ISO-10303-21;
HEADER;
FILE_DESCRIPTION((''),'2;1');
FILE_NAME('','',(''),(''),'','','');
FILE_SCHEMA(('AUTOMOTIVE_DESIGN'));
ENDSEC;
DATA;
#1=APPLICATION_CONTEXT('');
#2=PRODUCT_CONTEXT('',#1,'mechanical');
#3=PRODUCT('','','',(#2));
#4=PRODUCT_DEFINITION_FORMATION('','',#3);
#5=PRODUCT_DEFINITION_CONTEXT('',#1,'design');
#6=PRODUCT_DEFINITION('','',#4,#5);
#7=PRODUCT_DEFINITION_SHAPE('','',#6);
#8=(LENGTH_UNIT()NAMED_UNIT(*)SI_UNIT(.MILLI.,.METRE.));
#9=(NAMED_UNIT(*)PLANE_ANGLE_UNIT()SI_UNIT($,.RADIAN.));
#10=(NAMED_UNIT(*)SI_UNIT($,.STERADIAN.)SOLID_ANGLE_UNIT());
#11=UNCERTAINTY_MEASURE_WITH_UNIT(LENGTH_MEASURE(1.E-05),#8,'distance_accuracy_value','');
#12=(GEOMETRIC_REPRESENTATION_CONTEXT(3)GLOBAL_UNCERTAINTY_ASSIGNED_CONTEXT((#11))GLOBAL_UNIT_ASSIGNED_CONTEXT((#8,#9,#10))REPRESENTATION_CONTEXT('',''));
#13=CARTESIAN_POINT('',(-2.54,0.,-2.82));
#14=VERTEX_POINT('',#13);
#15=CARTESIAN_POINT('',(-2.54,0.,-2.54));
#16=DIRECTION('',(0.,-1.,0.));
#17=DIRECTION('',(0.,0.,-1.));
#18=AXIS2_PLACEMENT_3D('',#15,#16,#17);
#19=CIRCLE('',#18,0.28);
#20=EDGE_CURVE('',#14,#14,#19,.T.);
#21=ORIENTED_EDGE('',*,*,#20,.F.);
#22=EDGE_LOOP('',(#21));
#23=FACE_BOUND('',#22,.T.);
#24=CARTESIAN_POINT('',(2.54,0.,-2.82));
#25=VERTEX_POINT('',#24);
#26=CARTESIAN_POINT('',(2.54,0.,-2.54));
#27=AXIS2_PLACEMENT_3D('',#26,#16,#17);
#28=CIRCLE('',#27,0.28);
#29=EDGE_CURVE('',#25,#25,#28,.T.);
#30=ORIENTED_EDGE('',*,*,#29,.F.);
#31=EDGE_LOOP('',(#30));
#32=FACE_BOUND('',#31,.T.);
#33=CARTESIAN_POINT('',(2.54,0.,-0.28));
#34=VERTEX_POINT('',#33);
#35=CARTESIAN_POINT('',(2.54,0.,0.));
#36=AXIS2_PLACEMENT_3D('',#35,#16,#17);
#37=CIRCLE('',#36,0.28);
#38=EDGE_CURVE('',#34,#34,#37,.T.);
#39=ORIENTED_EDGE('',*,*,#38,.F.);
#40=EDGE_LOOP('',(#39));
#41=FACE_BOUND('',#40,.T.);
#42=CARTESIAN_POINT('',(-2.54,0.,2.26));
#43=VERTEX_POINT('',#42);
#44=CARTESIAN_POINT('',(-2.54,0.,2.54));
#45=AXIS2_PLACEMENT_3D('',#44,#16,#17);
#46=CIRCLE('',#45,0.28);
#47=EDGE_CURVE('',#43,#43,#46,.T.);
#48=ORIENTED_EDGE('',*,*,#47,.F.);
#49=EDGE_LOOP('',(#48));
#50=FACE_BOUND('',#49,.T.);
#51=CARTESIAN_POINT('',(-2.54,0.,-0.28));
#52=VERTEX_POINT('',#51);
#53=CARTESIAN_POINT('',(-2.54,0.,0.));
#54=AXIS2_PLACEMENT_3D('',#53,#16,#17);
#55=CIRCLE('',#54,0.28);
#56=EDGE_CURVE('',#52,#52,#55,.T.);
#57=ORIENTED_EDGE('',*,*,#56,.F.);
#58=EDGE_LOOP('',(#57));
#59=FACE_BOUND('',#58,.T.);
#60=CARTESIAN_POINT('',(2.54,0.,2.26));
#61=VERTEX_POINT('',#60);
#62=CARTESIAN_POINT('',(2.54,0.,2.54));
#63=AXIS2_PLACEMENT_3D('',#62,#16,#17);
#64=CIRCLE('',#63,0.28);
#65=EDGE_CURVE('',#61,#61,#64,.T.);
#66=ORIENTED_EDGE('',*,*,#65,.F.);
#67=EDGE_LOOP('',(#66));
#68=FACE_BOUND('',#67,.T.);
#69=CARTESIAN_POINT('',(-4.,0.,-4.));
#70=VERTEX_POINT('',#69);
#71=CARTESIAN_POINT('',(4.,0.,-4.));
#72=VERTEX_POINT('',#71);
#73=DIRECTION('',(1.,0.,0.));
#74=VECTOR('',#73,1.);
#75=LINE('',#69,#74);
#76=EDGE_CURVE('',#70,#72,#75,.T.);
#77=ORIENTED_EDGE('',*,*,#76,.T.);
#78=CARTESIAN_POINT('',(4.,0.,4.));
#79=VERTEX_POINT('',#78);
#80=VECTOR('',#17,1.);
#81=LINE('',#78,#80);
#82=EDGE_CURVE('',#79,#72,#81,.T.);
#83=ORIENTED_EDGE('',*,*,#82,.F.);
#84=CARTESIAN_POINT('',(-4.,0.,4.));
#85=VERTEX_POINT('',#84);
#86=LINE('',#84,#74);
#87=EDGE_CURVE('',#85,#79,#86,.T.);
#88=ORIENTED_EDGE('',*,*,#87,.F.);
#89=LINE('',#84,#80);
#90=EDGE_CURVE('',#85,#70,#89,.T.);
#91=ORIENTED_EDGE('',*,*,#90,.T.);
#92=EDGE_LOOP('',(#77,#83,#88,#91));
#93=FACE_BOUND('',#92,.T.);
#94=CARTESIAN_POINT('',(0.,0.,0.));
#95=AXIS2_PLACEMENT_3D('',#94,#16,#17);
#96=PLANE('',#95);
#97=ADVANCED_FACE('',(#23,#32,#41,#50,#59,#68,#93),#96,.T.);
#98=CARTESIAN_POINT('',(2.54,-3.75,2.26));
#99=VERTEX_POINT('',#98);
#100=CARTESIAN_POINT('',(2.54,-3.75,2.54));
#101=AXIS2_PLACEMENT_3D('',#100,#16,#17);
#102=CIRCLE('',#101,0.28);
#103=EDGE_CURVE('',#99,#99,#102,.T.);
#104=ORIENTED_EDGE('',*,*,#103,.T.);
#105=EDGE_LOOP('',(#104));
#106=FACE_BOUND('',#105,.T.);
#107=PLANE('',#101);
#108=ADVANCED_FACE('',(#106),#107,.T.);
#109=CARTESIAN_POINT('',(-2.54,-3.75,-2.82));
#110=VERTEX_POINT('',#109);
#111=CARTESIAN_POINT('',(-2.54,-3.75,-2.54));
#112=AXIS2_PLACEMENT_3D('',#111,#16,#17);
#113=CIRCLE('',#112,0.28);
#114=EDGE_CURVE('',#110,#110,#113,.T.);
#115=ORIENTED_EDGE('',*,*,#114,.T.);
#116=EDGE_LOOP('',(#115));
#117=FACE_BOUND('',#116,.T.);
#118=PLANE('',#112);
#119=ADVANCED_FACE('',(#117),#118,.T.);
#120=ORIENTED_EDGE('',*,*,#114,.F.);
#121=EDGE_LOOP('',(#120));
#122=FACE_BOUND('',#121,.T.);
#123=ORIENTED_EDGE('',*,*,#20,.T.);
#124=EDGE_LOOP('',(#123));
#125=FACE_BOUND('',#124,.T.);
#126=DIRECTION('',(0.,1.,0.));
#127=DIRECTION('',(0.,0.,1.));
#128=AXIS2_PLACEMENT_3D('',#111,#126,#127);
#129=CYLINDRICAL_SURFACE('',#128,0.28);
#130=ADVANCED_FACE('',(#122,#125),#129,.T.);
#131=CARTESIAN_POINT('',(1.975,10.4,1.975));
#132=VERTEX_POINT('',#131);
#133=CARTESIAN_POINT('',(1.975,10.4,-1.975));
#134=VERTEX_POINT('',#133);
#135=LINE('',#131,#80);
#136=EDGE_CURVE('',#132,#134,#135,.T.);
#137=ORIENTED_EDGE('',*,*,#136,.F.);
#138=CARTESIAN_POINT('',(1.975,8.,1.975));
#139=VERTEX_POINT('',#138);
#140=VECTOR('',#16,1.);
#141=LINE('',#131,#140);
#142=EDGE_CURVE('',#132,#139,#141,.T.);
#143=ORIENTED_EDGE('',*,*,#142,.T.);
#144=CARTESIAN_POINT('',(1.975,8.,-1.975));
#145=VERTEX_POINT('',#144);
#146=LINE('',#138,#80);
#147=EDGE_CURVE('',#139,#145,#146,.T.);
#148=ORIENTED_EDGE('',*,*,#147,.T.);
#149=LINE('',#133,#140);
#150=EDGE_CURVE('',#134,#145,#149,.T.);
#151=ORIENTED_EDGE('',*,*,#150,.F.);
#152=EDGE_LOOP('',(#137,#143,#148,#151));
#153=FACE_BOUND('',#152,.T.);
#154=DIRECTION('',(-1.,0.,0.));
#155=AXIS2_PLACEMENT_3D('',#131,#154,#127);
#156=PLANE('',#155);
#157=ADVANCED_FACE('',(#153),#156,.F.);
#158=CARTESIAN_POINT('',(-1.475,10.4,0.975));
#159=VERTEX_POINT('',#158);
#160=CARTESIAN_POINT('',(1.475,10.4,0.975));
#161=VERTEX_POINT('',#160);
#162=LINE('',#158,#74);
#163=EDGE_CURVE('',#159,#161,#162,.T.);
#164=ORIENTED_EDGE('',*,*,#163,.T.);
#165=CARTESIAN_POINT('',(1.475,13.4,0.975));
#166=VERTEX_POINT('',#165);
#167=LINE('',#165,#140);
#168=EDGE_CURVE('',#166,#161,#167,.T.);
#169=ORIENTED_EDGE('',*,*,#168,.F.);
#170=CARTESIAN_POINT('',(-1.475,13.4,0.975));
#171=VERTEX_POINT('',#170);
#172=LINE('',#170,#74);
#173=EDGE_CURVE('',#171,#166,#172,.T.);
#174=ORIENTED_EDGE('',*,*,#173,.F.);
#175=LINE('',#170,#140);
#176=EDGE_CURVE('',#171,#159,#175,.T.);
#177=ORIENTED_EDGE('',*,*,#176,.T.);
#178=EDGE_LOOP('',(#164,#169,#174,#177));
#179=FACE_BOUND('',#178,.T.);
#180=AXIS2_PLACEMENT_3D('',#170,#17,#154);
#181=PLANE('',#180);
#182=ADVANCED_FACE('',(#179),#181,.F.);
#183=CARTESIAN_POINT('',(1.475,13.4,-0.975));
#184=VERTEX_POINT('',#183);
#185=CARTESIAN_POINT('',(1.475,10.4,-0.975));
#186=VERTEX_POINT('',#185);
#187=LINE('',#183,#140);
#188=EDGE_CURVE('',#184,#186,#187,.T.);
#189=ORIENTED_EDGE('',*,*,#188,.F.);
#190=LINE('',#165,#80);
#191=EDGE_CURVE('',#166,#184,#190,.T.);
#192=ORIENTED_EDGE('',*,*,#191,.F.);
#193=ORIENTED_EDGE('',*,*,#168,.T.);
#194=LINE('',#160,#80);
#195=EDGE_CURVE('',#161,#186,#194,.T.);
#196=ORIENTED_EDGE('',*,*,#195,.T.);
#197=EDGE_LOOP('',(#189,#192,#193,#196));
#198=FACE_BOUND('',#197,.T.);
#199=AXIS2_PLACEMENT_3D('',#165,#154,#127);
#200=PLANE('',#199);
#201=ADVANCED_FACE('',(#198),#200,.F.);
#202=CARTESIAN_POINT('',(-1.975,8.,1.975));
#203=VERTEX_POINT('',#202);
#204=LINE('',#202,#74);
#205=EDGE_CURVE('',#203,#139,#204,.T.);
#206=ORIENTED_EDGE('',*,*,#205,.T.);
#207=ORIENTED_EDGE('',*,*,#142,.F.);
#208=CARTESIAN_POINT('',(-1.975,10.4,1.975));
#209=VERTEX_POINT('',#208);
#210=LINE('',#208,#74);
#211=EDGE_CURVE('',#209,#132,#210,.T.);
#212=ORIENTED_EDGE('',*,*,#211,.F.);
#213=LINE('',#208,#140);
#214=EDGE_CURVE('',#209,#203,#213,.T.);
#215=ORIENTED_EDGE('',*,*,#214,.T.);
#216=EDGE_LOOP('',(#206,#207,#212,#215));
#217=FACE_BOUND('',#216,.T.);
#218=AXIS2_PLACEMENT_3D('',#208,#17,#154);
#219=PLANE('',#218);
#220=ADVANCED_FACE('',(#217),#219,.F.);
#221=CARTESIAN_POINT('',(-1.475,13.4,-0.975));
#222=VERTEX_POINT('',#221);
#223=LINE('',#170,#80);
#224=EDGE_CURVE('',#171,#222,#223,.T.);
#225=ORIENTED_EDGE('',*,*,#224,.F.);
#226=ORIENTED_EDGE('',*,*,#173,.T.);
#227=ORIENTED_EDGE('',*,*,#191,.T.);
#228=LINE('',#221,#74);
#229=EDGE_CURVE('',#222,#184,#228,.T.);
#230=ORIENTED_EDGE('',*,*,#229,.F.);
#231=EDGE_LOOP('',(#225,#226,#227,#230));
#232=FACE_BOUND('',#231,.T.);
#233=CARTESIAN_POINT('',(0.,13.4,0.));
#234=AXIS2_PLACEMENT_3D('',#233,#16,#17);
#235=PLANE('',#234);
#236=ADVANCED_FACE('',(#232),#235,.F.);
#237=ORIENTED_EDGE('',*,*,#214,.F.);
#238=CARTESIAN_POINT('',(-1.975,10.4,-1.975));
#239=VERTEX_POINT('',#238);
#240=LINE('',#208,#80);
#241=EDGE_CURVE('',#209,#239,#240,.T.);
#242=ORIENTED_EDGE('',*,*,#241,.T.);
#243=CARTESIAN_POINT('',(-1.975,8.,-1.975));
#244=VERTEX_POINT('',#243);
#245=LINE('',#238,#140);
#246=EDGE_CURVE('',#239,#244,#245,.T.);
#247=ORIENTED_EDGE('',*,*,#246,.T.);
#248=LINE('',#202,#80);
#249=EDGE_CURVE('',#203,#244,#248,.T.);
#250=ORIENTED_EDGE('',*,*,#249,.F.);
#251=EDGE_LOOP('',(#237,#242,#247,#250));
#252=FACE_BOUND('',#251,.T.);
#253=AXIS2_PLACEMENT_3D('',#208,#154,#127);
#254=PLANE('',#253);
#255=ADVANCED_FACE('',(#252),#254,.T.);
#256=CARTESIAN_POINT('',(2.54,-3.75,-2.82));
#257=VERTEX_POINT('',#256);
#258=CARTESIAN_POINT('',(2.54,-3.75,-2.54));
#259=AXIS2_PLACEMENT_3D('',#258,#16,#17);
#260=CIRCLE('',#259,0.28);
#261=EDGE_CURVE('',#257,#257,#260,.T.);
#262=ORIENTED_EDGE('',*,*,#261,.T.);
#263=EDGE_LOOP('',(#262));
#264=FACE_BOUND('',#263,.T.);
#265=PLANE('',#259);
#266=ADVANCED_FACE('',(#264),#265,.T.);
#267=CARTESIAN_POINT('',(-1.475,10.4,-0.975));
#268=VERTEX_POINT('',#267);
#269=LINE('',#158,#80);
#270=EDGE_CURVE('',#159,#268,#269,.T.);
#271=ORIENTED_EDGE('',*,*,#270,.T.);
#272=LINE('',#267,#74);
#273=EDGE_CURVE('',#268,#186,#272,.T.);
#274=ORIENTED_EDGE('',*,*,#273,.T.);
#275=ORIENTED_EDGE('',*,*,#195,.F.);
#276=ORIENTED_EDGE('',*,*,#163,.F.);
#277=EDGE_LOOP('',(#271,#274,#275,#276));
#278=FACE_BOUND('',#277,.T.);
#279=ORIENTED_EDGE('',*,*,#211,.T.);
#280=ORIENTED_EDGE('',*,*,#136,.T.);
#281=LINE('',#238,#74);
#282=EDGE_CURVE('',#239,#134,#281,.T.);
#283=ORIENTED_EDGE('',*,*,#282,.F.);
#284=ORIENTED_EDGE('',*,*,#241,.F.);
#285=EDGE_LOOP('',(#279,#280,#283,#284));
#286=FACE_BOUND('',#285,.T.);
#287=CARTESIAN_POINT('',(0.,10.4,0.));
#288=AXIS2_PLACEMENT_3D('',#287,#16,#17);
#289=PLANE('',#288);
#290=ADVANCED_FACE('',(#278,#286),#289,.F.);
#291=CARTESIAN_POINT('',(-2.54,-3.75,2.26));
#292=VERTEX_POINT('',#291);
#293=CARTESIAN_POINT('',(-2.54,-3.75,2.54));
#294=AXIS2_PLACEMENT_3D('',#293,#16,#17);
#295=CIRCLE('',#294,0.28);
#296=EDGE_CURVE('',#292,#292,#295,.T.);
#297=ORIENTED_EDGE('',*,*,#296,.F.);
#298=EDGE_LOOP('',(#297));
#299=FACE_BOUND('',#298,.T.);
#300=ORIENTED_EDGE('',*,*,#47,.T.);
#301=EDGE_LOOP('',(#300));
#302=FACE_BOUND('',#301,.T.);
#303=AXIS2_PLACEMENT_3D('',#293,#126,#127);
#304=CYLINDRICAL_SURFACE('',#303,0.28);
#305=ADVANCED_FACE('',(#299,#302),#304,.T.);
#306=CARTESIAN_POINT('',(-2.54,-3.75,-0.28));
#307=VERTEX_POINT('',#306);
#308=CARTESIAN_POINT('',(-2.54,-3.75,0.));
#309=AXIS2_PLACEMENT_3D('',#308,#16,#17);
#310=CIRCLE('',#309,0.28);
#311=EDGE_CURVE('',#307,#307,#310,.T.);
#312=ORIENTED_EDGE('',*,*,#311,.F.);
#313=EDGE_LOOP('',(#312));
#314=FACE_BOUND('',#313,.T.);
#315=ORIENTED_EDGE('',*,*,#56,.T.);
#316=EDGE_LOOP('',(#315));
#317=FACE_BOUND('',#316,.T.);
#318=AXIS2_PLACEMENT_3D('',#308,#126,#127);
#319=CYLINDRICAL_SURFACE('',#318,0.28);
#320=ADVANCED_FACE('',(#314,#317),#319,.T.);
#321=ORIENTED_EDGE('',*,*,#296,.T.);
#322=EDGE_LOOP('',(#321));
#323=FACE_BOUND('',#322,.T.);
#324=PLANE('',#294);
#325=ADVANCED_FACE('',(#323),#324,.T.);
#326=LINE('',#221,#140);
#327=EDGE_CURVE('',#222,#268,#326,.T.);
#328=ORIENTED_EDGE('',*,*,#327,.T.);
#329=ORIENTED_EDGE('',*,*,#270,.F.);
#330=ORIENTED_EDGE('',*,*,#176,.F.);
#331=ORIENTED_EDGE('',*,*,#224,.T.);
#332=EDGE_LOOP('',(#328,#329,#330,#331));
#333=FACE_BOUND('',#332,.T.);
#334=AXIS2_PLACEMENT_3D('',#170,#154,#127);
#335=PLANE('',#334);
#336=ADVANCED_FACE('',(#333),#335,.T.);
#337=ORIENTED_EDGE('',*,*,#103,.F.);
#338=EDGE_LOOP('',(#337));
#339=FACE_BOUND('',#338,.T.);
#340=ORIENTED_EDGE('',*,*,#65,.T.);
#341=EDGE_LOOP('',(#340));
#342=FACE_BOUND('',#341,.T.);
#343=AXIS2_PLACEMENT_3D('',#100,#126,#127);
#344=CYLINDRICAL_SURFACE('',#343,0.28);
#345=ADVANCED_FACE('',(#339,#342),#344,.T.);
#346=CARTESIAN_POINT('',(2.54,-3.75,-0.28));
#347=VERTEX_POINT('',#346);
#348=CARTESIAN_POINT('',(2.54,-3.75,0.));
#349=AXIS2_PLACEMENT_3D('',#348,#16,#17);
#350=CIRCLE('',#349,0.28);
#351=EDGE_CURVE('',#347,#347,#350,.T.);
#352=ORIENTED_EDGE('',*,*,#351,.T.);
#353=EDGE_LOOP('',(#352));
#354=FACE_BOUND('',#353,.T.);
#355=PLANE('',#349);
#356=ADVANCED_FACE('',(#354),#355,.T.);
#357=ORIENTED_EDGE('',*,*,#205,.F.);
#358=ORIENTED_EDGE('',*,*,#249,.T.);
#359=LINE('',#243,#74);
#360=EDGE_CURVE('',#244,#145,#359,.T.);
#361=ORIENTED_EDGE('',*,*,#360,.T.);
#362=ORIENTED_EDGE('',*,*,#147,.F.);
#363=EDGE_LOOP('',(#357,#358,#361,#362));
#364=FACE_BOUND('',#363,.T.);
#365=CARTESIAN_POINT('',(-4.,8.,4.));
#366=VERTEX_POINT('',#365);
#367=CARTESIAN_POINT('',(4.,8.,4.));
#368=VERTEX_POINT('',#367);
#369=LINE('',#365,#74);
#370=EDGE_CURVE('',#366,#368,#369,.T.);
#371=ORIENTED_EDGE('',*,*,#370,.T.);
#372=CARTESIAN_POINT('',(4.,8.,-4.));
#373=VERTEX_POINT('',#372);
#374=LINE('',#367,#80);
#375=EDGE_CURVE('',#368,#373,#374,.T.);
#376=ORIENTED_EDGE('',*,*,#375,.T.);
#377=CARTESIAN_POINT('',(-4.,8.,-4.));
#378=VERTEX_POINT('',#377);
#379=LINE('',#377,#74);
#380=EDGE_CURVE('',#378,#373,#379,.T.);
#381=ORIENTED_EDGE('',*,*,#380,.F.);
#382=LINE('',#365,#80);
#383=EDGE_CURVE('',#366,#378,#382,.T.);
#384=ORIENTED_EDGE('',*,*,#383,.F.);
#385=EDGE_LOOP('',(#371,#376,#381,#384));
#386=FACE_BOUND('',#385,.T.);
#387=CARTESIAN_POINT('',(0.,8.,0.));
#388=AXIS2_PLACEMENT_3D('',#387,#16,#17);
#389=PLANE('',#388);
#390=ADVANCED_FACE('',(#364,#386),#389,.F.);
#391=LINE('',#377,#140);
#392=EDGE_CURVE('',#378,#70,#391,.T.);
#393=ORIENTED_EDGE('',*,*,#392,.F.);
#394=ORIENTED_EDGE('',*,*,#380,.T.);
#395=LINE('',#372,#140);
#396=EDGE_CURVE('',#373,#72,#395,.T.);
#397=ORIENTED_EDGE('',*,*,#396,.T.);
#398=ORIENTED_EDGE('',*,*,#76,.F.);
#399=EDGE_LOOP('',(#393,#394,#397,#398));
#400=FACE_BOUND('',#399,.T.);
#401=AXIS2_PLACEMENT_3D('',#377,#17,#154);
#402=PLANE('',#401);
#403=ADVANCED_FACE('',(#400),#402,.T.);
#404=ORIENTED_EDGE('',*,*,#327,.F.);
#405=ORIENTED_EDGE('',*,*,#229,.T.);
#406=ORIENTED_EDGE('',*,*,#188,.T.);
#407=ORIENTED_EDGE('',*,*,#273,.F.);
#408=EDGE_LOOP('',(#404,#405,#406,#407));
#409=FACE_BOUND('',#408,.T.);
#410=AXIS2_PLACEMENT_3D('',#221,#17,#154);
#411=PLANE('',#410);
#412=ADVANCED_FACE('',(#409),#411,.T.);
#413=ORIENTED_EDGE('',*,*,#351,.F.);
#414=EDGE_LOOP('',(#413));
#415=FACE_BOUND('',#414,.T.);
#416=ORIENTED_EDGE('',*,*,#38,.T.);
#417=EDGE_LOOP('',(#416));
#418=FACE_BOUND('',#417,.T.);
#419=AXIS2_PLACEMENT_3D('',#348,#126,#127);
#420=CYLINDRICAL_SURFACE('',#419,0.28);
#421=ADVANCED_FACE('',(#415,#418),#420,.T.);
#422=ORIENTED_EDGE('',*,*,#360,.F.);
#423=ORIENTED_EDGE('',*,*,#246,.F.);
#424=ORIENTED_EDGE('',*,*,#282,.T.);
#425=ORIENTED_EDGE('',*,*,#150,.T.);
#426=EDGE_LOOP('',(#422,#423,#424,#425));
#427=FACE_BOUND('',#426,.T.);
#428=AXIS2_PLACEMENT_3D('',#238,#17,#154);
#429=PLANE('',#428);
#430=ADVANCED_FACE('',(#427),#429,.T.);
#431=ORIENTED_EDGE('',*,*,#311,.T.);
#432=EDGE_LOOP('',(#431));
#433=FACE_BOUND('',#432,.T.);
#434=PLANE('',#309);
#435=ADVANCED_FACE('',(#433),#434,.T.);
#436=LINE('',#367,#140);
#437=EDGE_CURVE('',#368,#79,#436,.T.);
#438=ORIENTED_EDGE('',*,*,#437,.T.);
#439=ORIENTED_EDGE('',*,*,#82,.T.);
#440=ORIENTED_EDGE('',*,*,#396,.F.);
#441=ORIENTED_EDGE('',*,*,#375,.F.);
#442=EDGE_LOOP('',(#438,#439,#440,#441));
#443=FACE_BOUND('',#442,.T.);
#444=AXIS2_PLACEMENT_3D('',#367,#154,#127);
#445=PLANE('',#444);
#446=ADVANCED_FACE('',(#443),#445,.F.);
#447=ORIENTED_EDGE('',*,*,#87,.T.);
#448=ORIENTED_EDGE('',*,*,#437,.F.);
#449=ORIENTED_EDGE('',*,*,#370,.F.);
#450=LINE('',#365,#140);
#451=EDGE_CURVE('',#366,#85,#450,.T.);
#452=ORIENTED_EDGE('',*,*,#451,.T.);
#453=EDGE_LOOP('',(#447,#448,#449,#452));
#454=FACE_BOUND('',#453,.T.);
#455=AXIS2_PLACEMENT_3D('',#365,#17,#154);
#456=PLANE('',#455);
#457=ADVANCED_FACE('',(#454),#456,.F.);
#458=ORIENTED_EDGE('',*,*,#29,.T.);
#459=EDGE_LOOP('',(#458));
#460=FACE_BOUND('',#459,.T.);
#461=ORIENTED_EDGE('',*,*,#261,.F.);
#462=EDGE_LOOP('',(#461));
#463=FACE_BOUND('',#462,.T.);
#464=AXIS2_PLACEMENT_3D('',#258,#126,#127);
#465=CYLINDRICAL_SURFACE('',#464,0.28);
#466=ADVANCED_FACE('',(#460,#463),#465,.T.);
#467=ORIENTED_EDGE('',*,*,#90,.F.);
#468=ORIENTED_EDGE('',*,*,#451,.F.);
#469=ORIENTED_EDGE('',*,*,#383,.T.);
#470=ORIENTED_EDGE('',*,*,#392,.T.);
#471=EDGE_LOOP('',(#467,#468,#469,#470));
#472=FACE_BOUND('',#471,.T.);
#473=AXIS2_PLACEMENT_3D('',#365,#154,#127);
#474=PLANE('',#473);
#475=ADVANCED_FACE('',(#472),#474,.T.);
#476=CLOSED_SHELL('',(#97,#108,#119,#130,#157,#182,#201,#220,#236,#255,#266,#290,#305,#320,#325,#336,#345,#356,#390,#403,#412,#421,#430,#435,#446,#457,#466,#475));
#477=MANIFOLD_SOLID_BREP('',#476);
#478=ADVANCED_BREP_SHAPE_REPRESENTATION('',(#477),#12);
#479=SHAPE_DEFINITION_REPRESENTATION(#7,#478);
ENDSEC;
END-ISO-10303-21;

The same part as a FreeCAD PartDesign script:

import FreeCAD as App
import Part
import Sketcher

V = App.Vector


def add_polygon(sketch, points):
    """Adds a closed chain of lines whose ends are joined by coincident constraints."""
    first, n = sketch.GeometryCount, len(points)
    for a, b in zip(points, points[1:] + points[:1]):
        sketch.addGeometry(Part.LineSegment(App.Vector(*a, 0), App.Vector(*b, 0)), False)
    for i in range(n):
        sketch.addConstraint(Sketcher.Constraint("Coincident", first + i, 2, first + (i + 1) % n, 1))

doc = App.newDocument("Part")
body = doc.addObject("PartDesign::Body", "Body")

# Sketch on XZ plane
sketch1 = doc.addObject("Sketcher::SketchObject", "Sketch")
body.addObject(sketch1)
sketch1.AttachmentSupport = (doc.XZ_Plane, [""])
sketch1.MapMode = "FlatFace"
add_polygon(sketch1, [(-4, -4), (-4, 4), (4, 4), (4, -4)])  # lines 0-3
sketch1.addConstraint(Sketcher.Constraint("Vertical", 0))
sketch1.addConstraint(Sketcher.Constraint("Horizontal", 1))
sketch1.addConstraint(Sketcher.Constraint("Vertical", 2))
sketch1.addConstraint(Sketcher.Constraint("Horizontal", 3))
sketch1.addConstraint(Sketcher.Constraint("Symmetric", 0, 2, 2, 2, -1, 1))
sketch1.addConstraint(Sketcher.Constraint("Equal", 3, 0))
sketch1.addConstraint(Sketcher.Constraint("DistanceX", 1, 1, 1, 2, 8.0))
pad1 = doc.addObject("PartDesign::Pad", "Pad")
body.addObject(pad1)
pad1.Profile = sketch1
pad1.Length = 8
pad1.Reversed = True

# Sketch on XZ plane
sketch2 = doc.addObject("Sketcher::SketchObject", "Sketch001")
body.addObject(sketch2)
sketch2.AttachmentSupport = (doc.XZ_Plane, [""])
sketch2.MapMode = "FlatFace"
sketch2.AttachmentOffset = App.Placement(V(0, 0, -8), App.Rotation())
add_polygon(sketch2, [(-2, -2), (-2, 2), (2, 2), (2, -2)])  # lines 0-3
sketch2.addConstraint(Sketcher.Constraint("Vertical", 0))
sketch2.addConstraint(Sketcher.Constraint("Horizontal", 1))
sketch2.addConstraint(Sketcher.Constraint("Vertical", 2))
sketch2.addConstraint(Sketcher.Constraint("Horizontal", 3))
sketch2.addConstraint(Sketcher.Constraint("Symmetric", 0, 2, 2, 2, -1, 1))
sketch2.addConstraint(Sketcher.Constraint("Equal", 3, 0))
sketch2.addConstraint(Sketcher.Constraint("DistanceX", 1, 1, 1, 2, 3.95))
pad2 = doc.addObject("PartDesign::Pad", "Pad001")
body.addObject(pad2)
pad2.Profile = sketch2
pad2.Length = 2.4
pad2.Reversed = True

# Sketch on XZ plane
sketch3 = doc.addObject("Sketcher::SketchObject", "Sketch002")
body.addObject(sketch3)
sketch3.AttachmentSupport = (doc.XZ_Plane, [""])
sketch3.MapMode = "FlatFace"
sketch3.AttachmentOffset = App.Placement(V(0, 0, -10.4), App.Rotation())
add_polygon(sketch3, [(-1.5, -1), (-1.5, 1), (1.5, 1), (1.5, -1)])  # lines 0-3
sketch3.addConstraint(Sketcher.Constraint("Vertical", 0))
sketch3.addConstraint(Sketcher.Constraint("Horizontal", 1))
sketch3.addConstraint(Sketcher.Constraint("Vertical", 2))
sketch3.addConstraint(Sketcher.Constraint("Horizontal", 3))
sketch3.addConstraint(Sketcher.Constraint("Symmetric", 0, 2, 2, 2, -1, 1))
sketch3.addConstraint(Sketcher.Constraint("DistanceX", 1, 1, 1, 2, 2.95))
sketch3.addConstraint(Sketcher.Constraint("DistanceY", 0, 1, 0, 2, 1.95))
pad3 = doc.addObject("PartDesign::Pad", "Pad002")
body.addObject(pad3)
pad3.Profile = sketch3
pad3.Length = 3
pad3.Reversed = True

# Sketch on XZ plane
sketch4 = doc.addObject("Sketcher::SketchObject", "Sketch003")
body.addObject(sketch4)
sketch4.AttachmentSupport = (doc.XZ_Plane, [""])
sketch4.MapMode = "FlatFace"
sketch4.addGeometry(Part.Circle(V(2.54, 2.54, 0), V(0, 0, 1), 0.28), False)
sketch4.addGeometry(Part.Circle(V(2.54, 0, 0), V(0, 0, 1), 0.28), False)
sketch4.addGeometry(Part.Circle(V(2.54, -2.54, 0), V(0, 0, 1), 0.28), False)
sketch4.addGeometry(Part.Circle(V(-2.54, -2.54, 0), V(0, 0, 1), 0.28), False)
sketch4.addGeometry(Part.Circle(V(-2.54, 0, 0), V(0, 0, 1), 0.28), False)
sketch4.addGeometry(Part.Circle(V(-2.54, 2.54, 0), V(0, 0, 1), 0.28), False)
sketch4.addConstraint(Sketcher.Constraint("Equal", 0, 1))
sketch4.addConstraint(Sketcher.Constraint("Equal", 1, 2))
sketch4.addConstraint(Sketcher.Constraint("Equal", 2, 3))
sketch4.addConstraint(Sketcher.Constraint("Equal", 3, 4))
sketch4.addConstraint(Sketcher.Constraint("Equal", 4, 5))
sketch4.addConstraint(Sketcher.Constraint("Symmetric", 0, 3, 3, 3, -1, 1))
sketch4.addConstraint(Sketcher.Constraint("Symmetric", 1, 3, 4, 3, -1, 1))
sketch4.addConstraint(Sketcher.Constraint("Symmetric", 2, 3, 5, 3, -1, 1))
sketch4.addConstraint(Sketcher.Constraint("Symmetric", 2, 3, 3, 3, -2))
sketch4.addConstraint(Sketcher.Constraint("PointOnObject", 1, 3, -1))
sketch4.addConstraint(Sketcher.Constraint("Vertical", 0, 3, 1, 3))
sketch4.addConstraint(Sketcher.Constraint("Diameter", 0, 0.56))
sketch4.addConstraint(Sketcher.Constraint("DistanceX", -1, 1, 0, 3, 2.54))
sketch4.addConstraint(Sketcher.Constraint("DistanceY", -1, 1, 0, 3, 2.54))
pad4 = doc.addObject("PartDesign::Pad", "Pad003")
body.addObject(pad4)
pad4.Profile = sketch4
pad4.Length = 3.75

doc.recompute()
